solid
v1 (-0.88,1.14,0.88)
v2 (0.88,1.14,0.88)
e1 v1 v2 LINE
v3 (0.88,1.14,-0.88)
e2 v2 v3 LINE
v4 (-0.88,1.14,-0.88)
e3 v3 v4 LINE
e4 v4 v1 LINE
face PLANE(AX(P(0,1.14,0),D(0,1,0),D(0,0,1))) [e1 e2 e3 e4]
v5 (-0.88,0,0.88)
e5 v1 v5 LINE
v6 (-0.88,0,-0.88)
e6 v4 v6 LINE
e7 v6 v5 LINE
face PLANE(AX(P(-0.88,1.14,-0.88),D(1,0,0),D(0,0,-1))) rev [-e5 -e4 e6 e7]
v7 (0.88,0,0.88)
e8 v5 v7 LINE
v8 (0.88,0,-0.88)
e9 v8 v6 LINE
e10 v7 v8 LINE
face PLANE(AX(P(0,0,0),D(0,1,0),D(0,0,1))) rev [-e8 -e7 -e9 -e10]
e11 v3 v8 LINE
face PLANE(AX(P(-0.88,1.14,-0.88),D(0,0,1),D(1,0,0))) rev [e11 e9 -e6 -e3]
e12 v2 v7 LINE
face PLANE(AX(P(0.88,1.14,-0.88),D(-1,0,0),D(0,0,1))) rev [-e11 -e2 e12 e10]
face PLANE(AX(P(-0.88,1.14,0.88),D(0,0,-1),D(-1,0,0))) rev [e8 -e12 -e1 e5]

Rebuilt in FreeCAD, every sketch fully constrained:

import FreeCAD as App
import Part
import Sketcher

doc = App.newDocument("Part")
params = doc.addObject("Spreadsheet::Sheet", "Params")
for row, (alias, value) in enumerate([
    ("sketch1_width", "1.76 mm"),
    ("pad1_length", "1.14 mm"),
], start=1):
    params.set(f"A{row}", alias)
    params.set(f"B{row}", "=" + value)
    params.setAlias(f"B{row}", alias)

body = doc.addObject("PartDesign::Body", "Body")

# Sketch on XZ plane
sketch1 = body.newObject("Sketcher::SketchObject", "Sketch")
sketch1.AttachmentSupport = (doc.getObject("XZ_Plane"), [""])
sketch1.MapMode = "FlatFace"
sketch1.addGeometry(Part.LineSegment(App.Vector(-0.88, -0.88, 0), App.Vector(-0.88, 0.88, 0)), False)
sketch1.addGeometry(Part.LineSegment(App.Vector(-0.88, 0.88, 0), App.Vector(0.88, 0.88, 0)), False)
sketch1.addGeometry(Part.LineSegment(App.Vector(0.88, 0.88, 0), App.Vector(0.88, -0.88, 0)), False)
sketch1.addGeometry(Part.LineSegment(App.Vector(0.88, -0.88, 0), App.Vector(-0.88, -0.88, 0)), False)
sketch1.addConstraint(Sketcher.Constraint("Coincident", 0, 2, 1, 1))
sketch1.addConstraint(Sketcher.Constraint("Coincident", 1, 2, 2, 1))
sketch1.addConstraint(Sketcher.Constraint("Coincident", 2, 2, 3, 1))
sketch1.addConstraint(Sketcher.Constraint("Coincident", 3, 2, 0, 1))
sketch1.addConstraint(Sketcher.Constraint("Vertical", 0))
sketch1.addConstraint(Sketcher.Constraint("Horizontal", 1))
sketch1.addConstraint(Sketcher.Constraint("Vertical", 2))
sketch1.addConstraint(Sketcher.Constraint("Horizontal", 3))
sketch1.addConstraint(Sketcher.Constraint("Symmetric", 0, 2, 2, 2, -1, 1))
sketch1.addConstraint(Sketcher.Constraint("Equal", 3, 0))
sketch1.addConstraint(Sketcher.Constraint("DistanceX", 1, 1, 1, 2, 1.76))
sketch1.setExpression("Constraints[10]", "Params.sketch1_width")
pad1 = body.newObject("PartDesign::Pad", "Pad")
pad1.Profile = sketch1
pad1.setExpression("Length", "Params.pad1_length")
pad1.Reversed = True

doc.recompute()
